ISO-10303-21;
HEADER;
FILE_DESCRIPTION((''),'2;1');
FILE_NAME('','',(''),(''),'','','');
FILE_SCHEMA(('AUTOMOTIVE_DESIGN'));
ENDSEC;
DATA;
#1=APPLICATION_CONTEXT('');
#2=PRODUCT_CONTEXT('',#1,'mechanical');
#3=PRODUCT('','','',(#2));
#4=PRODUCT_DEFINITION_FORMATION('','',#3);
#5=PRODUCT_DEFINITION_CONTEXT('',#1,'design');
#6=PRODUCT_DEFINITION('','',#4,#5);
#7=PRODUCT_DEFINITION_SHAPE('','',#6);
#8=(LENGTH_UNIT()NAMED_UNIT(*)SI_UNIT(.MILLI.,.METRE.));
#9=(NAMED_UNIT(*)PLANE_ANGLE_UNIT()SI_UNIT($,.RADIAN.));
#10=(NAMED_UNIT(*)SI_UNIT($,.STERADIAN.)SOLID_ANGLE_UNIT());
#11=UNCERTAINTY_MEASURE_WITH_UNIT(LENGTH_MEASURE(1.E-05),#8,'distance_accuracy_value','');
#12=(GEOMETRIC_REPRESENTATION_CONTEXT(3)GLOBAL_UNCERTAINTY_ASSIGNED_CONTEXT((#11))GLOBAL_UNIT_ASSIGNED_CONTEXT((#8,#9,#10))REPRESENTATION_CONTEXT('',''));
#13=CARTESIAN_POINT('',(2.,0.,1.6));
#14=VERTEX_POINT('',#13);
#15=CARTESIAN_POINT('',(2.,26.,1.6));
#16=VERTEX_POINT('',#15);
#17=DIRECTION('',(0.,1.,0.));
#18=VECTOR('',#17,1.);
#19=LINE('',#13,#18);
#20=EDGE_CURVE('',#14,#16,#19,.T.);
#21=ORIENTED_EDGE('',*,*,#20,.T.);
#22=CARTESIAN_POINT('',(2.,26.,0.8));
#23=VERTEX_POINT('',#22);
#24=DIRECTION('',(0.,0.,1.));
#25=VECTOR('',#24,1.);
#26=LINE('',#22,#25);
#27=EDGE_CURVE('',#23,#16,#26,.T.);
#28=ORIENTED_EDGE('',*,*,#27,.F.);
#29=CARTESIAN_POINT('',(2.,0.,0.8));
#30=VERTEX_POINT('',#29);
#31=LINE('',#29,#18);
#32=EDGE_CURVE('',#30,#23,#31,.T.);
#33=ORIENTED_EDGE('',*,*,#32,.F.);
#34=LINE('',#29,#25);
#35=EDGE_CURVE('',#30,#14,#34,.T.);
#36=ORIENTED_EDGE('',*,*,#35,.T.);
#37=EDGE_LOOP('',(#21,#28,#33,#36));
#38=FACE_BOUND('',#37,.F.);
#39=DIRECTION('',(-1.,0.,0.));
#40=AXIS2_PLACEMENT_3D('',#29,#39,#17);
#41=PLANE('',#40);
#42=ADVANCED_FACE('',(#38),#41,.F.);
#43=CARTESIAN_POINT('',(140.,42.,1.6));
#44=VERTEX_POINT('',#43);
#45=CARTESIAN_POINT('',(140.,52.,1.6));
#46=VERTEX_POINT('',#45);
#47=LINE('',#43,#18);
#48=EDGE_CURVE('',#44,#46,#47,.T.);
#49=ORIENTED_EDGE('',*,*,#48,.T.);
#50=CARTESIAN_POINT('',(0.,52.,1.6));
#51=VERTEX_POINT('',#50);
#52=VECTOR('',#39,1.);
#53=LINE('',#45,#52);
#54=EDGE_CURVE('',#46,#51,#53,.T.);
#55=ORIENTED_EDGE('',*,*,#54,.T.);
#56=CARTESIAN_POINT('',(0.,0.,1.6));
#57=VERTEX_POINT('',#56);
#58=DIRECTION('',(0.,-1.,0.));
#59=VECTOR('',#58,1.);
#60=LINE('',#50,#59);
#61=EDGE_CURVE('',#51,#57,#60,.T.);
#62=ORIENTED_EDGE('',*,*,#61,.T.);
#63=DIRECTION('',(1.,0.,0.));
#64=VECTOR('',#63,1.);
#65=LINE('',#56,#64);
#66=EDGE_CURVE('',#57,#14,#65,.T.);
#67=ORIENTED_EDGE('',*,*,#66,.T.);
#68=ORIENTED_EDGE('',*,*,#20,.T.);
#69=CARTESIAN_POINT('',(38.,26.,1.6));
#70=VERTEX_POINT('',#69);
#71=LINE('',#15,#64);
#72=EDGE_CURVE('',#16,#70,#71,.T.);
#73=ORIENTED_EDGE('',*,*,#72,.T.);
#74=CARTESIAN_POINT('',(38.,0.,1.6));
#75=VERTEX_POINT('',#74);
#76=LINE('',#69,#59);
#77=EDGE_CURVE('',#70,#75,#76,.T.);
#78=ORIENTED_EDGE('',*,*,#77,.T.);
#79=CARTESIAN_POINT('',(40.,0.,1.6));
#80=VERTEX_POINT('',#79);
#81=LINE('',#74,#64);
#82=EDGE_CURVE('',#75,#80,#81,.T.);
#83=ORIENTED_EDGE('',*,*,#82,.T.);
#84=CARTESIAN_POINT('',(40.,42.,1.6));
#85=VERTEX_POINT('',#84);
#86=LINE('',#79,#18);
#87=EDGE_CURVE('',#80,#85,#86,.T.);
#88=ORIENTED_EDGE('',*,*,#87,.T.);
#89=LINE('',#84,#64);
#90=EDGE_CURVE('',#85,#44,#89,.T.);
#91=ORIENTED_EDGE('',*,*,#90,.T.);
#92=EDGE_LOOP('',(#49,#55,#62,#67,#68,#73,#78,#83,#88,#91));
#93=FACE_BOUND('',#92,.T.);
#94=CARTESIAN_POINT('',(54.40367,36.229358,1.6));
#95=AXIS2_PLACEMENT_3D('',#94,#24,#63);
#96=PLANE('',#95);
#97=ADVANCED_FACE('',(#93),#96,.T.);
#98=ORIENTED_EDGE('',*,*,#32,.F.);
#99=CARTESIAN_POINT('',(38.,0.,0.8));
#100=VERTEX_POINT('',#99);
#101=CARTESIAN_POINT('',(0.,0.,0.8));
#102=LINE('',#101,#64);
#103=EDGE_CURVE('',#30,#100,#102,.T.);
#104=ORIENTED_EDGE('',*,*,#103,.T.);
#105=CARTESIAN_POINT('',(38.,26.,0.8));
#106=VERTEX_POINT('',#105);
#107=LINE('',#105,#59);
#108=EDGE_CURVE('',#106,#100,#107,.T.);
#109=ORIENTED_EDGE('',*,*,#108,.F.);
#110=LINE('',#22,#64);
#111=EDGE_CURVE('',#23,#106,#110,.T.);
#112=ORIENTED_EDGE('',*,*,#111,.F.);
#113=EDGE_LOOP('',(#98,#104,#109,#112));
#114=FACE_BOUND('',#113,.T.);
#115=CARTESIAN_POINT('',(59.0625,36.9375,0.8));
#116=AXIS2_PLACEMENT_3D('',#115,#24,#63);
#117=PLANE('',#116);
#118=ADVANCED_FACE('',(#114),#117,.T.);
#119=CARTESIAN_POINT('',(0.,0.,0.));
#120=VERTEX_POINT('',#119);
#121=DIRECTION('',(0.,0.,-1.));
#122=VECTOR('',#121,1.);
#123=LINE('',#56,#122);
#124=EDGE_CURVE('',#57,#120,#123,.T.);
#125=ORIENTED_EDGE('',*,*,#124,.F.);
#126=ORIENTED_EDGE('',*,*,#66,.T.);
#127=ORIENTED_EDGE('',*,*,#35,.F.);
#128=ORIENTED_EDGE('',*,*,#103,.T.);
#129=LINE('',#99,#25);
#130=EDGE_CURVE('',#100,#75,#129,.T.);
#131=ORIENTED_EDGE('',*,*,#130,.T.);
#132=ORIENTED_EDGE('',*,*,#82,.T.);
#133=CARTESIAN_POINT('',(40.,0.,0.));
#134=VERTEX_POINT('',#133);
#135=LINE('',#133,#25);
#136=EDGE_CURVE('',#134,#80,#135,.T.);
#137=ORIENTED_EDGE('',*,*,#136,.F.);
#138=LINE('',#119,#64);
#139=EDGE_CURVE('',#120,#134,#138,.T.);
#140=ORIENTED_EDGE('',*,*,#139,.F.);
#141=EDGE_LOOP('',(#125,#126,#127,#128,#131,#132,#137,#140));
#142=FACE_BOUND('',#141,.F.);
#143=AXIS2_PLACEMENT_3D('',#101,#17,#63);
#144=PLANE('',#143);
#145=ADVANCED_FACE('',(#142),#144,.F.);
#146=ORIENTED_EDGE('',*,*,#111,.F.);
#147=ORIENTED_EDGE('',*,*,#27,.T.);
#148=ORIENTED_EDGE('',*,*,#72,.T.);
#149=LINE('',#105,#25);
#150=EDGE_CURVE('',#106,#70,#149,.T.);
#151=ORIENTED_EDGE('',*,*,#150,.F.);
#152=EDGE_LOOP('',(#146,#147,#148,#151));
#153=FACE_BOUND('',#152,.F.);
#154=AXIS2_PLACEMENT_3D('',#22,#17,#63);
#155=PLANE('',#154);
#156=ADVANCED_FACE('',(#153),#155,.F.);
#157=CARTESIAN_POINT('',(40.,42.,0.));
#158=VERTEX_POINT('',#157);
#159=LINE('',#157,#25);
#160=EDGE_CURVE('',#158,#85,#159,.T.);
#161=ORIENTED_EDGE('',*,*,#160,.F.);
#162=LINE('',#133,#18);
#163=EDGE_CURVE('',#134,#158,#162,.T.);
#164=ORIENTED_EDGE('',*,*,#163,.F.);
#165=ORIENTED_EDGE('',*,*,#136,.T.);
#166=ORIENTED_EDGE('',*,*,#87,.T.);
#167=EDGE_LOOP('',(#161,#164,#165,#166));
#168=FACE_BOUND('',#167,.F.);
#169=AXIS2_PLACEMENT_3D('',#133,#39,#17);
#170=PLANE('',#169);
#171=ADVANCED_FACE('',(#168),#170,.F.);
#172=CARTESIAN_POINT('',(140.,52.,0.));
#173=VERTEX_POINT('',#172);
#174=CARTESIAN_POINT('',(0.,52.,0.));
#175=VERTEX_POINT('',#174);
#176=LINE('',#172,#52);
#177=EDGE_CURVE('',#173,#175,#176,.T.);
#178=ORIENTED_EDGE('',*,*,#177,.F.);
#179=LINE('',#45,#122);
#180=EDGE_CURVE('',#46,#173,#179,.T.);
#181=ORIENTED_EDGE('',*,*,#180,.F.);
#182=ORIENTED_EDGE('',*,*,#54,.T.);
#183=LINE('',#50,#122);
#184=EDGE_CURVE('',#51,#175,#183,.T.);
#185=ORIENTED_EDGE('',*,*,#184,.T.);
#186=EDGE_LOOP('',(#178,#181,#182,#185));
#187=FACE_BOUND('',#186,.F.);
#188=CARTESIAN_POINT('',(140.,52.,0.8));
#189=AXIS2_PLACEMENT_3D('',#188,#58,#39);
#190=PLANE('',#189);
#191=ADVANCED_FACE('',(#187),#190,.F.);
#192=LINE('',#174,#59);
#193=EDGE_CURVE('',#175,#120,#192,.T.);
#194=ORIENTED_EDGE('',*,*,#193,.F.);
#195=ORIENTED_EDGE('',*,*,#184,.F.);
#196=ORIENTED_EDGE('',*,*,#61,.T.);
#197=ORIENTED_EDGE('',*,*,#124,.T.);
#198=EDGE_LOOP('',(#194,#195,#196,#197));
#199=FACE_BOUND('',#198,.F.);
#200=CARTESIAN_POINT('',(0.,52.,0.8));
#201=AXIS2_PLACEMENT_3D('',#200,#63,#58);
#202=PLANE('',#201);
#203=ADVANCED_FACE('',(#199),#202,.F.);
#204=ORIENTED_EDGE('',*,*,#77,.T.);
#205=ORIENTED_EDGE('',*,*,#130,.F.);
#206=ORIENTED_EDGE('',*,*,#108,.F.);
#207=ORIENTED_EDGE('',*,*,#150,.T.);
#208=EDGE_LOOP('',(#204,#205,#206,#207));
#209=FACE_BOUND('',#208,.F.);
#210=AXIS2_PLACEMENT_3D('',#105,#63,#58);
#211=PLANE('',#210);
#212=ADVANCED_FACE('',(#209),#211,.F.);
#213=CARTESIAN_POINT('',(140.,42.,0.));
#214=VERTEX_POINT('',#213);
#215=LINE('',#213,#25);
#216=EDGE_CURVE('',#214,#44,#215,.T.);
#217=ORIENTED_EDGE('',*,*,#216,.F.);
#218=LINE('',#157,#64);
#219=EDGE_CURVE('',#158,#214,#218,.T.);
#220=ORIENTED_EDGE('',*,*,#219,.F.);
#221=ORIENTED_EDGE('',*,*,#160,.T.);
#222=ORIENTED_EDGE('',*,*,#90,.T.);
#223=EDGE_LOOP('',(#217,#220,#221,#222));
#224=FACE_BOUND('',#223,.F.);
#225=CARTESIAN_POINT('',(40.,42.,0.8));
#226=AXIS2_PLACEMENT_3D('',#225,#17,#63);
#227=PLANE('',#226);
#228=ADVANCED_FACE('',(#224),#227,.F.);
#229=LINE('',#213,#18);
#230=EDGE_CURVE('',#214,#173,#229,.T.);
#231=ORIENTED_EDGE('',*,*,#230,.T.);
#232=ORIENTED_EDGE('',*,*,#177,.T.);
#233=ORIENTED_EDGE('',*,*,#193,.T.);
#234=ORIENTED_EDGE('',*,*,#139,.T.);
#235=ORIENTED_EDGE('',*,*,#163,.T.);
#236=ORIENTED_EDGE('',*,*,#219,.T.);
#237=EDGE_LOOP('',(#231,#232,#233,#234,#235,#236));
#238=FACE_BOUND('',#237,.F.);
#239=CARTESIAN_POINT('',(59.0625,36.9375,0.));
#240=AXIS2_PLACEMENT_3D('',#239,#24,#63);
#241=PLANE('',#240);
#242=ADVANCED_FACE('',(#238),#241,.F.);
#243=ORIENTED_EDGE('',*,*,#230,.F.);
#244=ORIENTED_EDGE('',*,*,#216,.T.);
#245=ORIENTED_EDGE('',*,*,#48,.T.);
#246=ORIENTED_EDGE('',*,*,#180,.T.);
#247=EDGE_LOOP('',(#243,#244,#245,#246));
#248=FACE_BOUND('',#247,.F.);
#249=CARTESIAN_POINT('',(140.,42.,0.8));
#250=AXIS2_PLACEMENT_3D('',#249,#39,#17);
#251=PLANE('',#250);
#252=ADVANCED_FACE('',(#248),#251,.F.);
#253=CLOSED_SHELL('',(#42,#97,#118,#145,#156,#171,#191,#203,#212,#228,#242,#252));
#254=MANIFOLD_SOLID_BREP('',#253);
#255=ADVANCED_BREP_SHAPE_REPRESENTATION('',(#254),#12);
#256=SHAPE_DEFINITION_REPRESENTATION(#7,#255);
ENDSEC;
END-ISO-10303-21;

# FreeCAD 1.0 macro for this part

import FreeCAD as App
import Part
import Sketcher
Q = App.Units.Quantity


def add_polygon(sketch, points):
    """Adds a closed chain of lines whose ends are joined by coincident constraints."""
    first, n = sketch.GeometryCount, len(points)
    for a, b in zip(points, points[1:] + points[:1]):
        sketch.addGeometry(Part.LineSegment(App.Vector(*a, 0), App.Vector(*b, 0)), False)
    for i in range(n):
        sketch.addConstraint(Sketcher.Constraint("Coincident", first + i, 2, first + (i + 1) % n, 1))

doc = App.newDocument("Part")
body = doc.addObject("PartDesign::Body", "Body")

# Sketch on XY plane
sketch1 = doc.addObject("Sketcher::SketchObject", "Sketch")
body.addObject(sketch1)
sketch1.AttachmentSupport = (doc.XY_Plane, [""])
sketch1.MapMode = "FlatFace"
add_polygon(sketch1, [(0, 52), (0, 0), (40, 0), (40, 42), (140, 42), (140, 52)])  # lines 0-5
sketch1.addConstraint(Sketcher.Constraint("Vertical", 0))
sketch1.addConstraint(Sketcher.Constraint("Horizontal", 1))
sketch1.addConstraint(Sketcher.Constraint("Vertical", 2))
sketch1.addConstraint(Sketcher.Constraint("Horizontal", 3))
sketch1.addConstraint(Sketcher.Constraint("Vertical", 4))
sketch1.addConstraint(Sketcher.Constraint("Horizontal", 5))
sketch1.addConstraint(Sketcher.Constraint("Coincident", 0, 2, -1, 1))
sketch1.addConstraint(Sketcher.Constraint("DistanceX", 1, 1, 1, 2, Q("40 mm")))
sketch1.addConstraint(Sketcher.Constraint("DistanceX", 3, 1, 3, 2, Q("100 mm")))
sketch1.addConstraint(Sketcher.Constraint("DistanceY", 0, 2, 0, 1, Q("52 mm")))
sketch1.addConstraint(Sketcher.Constraint("DistanceY", 2, 1, 2, 2, Q("42 mm")))
pad1 = doc.addObject("PartDesign::Pad", "Pad")
body.addObject(pad1)
pad1.Profile = sketch1
pad1.Length = 0.8

# Sketch on XY plane
sketch2 = doc.addObject("Sketcher::SketchObject", "Sketch001")
body.addObject(sketch2)
sketch2.AttachmentSupport = (doc.XY_Plane, [""])
sketch2.MapMode = "FlatFace"
sketch2.AttachmentOffset = App.Placement(App.Vector(0, 0, 0.8), App.Rotation())
add_polygon(sketch2, [(0, 0), (2, 0), (2, 26), (38, 26), (38, 0), (40, 0), (40, 42), (140, 42), (140, 52), (0, 52)])  # lines 0-9
sketch2.addConstraint(Sketcher.Constraint("Horizontal", 0))
sketch2.addConstraint(Sketcher.Constraint("Vertical", 1))
sketch2.addConstraint(Sketcher.Constraint("Horizontal", 2))
sketch2.addConstraint(Sketcher.Constraint("Vertical", 3))
sketch2.addConstraint(Sketcher.Constraint("Horizontal", 4))
sketch2.addConstraint(Sketcher.Constraint("Vertical", 5))
sketch2.addConstraint(Sketcher.Constraint("Horizontal", 6))
sketch2.addConstraint(Sketcher.Constraint("Vertical", 7))
sketch2.addConstraint(Sketcher.Constraint("Horizontal", 8))
sketch2.addConstraint(Sketcher.Constraint("Vertical", 9))
sketch2.addConstraint(Sketcher.Constraint("Coincident", 9, 2, -1, 1))
sketch2.addConstraint(Sketcher.Constraint("PointOnObject", 3, 2, -1))
sketch2.addConstraint(Sketcher.Constraint("Equal", 0, 4))
sketch2.addConstraint(Sketcher.Constraint("DistanceX", 0, 1, 0, 2, Q("2 mm")))
sketch2.addConstraint(Sketcher.Constraint("DistanceX", 2, 1, 2, 2, Q("36 mm")))
sketch2.addConstraint(Sketcher.Constraint("DistanceX", 6, 1, 6, 2, Q("100 mm")))
sketch2.addConstraint(Sketcher.Constraint("DistanceY", 1, 1, 1, 2, Q("26 mm")))
sketch2.addConstraint(Sketcher.Constraint("DistanceY", 5, 1, 5, 2, Q("42 mm")))
sketch2.addConstraint(Sketcher.Constraint("DistanceY", 7, 1, 7, 2, Q("10 mm")))
pad2 = doc.addObject("PartDesign::Pad", "Pad001")
body.addObject(pad2)
pad2.Profile = sketch2
pad2.Length = 0.8

doc.recompute()
